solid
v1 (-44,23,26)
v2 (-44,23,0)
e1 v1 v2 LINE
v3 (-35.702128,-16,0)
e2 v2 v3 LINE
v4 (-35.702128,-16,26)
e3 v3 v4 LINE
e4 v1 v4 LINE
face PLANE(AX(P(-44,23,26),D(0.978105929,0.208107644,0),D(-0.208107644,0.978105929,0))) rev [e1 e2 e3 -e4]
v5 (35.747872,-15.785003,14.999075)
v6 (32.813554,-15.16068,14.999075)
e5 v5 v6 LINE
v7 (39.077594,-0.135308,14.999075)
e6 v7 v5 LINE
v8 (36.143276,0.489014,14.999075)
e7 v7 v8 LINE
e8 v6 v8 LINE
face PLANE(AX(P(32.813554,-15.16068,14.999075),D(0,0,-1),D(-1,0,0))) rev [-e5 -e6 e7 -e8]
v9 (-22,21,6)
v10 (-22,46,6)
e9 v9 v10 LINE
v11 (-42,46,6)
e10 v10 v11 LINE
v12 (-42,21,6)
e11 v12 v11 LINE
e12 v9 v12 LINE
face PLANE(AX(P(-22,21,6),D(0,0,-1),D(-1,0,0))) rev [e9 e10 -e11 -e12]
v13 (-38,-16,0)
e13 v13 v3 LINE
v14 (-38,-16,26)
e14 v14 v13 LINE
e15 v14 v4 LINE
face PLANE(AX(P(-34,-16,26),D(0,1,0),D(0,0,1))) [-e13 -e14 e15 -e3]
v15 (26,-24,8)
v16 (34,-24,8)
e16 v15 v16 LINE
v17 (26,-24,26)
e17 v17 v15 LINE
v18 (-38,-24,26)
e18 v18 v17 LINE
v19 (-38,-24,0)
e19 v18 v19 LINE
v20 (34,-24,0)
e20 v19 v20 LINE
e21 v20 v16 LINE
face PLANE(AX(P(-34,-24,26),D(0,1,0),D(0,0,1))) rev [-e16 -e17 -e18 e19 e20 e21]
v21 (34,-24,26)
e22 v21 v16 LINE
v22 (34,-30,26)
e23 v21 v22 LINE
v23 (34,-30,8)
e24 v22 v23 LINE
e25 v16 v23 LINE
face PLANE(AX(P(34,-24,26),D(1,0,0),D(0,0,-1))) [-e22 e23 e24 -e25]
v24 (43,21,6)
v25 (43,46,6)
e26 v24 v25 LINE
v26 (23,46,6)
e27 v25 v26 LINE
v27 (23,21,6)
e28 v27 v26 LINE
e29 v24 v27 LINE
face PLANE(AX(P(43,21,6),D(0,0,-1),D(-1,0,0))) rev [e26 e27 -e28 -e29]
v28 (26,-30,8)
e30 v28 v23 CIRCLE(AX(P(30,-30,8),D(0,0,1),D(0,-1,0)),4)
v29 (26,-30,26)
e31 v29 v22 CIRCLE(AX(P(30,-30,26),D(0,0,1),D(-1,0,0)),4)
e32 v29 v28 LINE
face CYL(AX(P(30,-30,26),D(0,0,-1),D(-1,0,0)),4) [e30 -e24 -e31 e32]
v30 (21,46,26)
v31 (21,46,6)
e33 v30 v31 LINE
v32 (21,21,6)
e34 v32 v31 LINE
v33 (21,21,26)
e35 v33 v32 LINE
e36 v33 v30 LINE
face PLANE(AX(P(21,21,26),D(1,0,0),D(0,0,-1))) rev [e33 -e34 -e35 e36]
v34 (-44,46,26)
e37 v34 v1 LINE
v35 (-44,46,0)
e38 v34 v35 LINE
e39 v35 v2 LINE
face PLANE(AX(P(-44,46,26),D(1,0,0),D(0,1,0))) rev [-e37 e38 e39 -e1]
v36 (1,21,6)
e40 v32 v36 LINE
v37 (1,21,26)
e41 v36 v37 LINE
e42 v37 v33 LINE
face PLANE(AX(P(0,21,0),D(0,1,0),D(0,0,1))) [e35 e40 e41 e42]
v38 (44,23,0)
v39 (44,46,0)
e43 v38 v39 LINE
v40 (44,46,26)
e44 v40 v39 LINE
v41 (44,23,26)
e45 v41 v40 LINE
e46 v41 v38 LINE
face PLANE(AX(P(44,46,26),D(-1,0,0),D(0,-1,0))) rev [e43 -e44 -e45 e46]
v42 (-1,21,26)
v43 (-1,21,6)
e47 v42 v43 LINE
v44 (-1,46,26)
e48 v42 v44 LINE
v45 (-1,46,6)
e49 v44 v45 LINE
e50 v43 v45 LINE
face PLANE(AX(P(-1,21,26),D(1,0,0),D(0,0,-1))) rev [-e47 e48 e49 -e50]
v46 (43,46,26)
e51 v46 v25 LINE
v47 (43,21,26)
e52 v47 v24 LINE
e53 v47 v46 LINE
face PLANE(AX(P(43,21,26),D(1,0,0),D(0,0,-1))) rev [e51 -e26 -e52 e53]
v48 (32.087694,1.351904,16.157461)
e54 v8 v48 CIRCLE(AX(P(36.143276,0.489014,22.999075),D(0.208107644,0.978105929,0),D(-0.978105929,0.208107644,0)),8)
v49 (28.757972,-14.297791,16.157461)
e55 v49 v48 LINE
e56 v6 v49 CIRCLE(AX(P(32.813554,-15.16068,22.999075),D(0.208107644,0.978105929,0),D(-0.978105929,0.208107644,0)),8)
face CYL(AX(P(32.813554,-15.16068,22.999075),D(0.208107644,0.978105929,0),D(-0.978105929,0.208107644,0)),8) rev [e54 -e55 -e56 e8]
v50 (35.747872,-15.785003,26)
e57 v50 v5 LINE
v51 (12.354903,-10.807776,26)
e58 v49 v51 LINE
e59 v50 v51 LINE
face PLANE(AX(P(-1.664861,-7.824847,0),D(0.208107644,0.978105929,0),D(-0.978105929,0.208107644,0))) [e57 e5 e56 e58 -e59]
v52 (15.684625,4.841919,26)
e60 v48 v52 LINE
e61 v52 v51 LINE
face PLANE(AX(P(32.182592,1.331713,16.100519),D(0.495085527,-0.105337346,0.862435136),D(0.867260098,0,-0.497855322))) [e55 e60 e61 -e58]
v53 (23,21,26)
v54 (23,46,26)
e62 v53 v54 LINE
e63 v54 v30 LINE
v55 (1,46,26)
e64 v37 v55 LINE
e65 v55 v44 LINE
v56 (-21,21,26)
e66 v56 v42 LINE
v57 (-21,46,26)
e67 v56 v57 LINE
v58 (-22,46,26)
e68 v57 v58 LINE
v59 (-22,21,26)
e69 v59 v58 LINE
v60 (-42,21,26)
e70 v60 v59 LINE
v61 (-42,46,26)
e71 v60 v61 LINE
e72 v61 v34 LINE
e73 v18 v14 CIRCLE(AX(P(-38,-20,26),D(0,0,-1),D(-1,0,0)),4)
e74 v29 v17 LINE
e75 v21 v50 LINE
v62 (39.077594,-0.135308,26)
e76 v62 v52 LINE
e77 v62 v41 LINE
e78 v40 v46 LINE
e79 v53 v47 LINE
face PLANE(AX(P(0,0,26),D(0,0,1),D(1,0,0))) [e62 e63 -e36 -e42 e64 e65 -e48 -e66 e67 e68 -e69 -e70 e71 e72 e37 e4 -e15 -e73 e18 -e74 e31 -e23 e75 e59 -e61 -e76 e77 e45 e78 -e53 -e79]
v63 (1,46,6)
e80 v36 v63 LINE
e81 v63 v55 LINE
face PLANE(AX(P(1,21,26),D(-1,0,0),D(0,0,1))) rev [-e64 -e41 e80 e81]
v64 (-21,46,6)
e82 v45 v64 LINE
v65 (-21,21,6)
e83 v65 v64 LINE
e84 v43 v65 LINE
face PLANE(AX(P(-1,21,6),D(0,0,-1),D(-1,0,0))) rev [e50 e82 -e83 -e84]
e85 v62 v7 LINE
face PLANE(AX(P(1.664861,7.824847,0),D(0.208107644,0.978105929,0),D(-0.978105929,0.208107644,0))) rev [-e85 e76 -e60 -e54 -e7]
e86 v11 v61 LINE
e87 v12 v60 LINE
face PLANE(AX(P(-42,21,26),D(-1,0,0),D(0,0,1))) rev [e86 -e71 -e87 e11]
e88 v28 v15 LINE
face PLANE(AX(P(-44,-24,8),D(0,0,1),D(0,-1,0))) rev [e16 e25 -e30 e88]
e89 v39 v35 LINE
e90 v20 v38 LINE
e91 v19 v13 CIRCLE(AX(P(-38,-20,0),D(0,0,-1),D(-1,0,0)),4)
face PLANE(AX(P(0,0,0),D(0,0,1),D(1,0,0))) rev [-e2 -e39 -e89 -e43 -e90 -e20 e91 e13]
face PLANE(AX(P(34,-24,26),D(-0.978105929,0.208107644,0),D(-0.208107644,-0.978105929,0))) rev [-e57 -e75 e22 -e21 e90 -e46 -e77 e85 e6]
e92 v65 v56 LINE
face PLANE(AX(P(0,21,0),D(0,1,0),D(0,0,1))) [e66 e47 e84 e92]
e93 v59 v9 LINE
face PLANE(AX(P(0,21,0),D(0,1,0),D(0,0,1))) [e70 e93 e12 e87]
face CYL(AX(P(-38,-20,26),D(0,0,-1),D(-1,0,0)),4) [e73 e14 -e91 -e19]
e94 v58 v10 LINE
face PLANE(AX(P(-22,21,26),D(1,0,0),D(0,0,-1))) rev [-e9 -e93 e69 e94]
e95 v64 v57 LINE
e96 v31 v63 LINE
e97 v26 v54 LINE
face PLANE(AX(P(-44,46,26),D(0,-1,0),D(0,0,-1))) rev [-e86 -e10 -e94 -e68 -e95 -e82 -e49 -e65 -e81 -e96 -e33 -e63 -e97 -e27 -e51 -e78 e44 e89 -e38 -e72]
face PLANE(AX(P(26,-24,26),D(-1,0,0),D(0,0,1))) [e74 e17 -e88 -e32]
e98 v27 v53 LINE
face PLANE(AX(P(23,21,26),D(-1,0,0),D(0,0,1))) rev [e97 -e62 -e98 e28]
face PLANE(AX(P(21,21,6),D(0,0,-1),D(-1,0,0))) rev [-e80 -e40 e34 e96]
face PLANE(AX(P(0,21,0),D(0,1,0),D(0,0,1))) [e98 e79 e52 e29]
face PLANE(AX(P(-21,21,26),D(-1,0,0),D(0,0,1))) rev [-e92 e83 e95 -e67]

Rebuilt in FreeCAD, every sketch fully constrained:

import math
import FreeCAD as App
import Part
import Sketcher
Q = App.Units.Quantity

doc = App.newDocument("Part")
body = doc.addObject("PartDesign::Body", "Body")

# Sketch on XY plane
sketch1 = body.newObject("Sketcher::SketchObject", "Sketch")
sketch1.AttachmentSupport = (doc.getObject("XY_Plane"), [""])
sketch1.MapMode = "FlatFace"
sketch1.addGeometry(Part.LineSegment(App.Vector(-34, -24, 0), App.Vector(34, -24, 0)), False)
sketch1.addGeometry(Part.LineSegment(App.Vector(34, -24, 0), App.Vector(44, 23, 0)), False)
sketch1.addGeometry(Part.LineSegment(App.Vector(44, 23, 0), App.Vector(44, 46, 0)), False)
sketch1.addGeometry(Part.LineSegment(App.Vector(44, 46, 0), App.Vector(-44, 46, 0)), False)
sketch1.addGeometry(Part.LineSegment(App.Vector(-44, 46, 0), App.Vector(-44, 23, 0)), False)
sketch1.addGeometry(Part.LineSegment(App.Vector(-44, 23, 0), App.Vector(-34, -24, 0)), False)
sketch1.addConstraint(Sketcher.Constraint("Coincident", 0, 2, 1, 1))
sketch1.addConstraint(Sketcher.Constraint("Coincident", 1, 2, 2, 1))
sketch1.addConstraint(Sketcher.Constraint("Coincident", 2, 2, 3, 1))
sketch1.addConstraint(Sketcher.Constraint("Coincident", 3, 2, 4, 1))
sketch1.addConstraint(Sketcher.Constraint("Coincident", 4, 2, 5, 1))
sketch1.addConstraint(Sketcher.Constraint("Coincident", 5, 2, 0, 1))
sketch1.addConstraint(Sketcher.Constraint("Horizontal", 0))
sketch1.addConstraint(Sketcher.Constraint("Vertical", 2))
sketch1.addConstraint(Sketcher.Constraint("Horizontal", 3))
sketch1.addConstraint(Sketcher.Constraint("Vertical", 4))
sketch1.addConstraint(Sketcher.Constraint("Symmetric", 1, 2, 4, 2, -2))
sketch1.addConstraint(Sketcher.Constraint("Equal", 1, 5))
sketch1.addConstraint(Sketcher.Constraint("DistanceX", 0, 1, 0, 2, Q("68 mm")))
sketch1.addConstraint(Sketcher.Constraint("DistanceX", 3, 2, 3, 1, Q("88 mm")))
sketch1.addConstraint(Sketcher.Constraint("DistanceY", 2, 1, 2, 2, Q("23 mm")))
sketch1.addConstraint(Sketcher.Constraint("DistanceY", 0, 2, -1, 1, Q("24 mm")))
sketch1.addConstraint(Sketcher.Constraint("DistanceY", -1, 1, 1, 2, Q("23 mm")))
pad1 = body.newObject("PartDesign::Pad", "Pad")
pad1.Profile = sketch1
pad1.Length = 26

# Sketch on XZ plane
sketch2 = body.newObject("Sketcher::SketchObject", "Sketch001")
sketch2.AttachmentSupport = (doc.getObject("XZ_Plane"), [""])
sketch2.MapMode = "FlatFace"
sketch2.AttachmentOffset = App.Placement(App.Vector(0, 0, -46), App.Rotation())
sketch2.addGeometry(Part.LineSegment(App.Vector(23, 6, 0), App.Vector(23, 26, 0)), False)
sketch2.addGeometry(Part.LineSegment(App.Vector(23, 26, 0), App.Vector(43, 26, 0)), False)
sketch2.addGeometry(Part.LineSegment(App.Vector(43, 26, 0), App.Vector(43, 6, 0)), False)
sketch2.addGeometry(Part.LineSegment(App.Vector(43, 6, 0), App.Vector(23, 6, 0)), False)
sketch2.addGeometry(Part.LineSegment(App.Vector(1, 6, 0), App.Vector(1, 26, 0)), False)
sketch2.addGeometry(Part.LineSegment(App.Vector(1, 26, 0), App.Vector(21, 26, 0)), False)
sketch2.addGeometry(Part.LineSegment(App.Vector(21, 26, 0), App.Vector(21, 6, 0)), False)
sketch2.addGeometry(Part.LineSegment(App.Vector(21, 6, 0), App.Vector(1, 6, 0)), False)
sketch2.addGeometry(Part.LineSegment(App.Vector(-21, 6, 0), App.Vector(-21, 26, 0)), False)
sketch2.addGeometry(Part.LineSegment(App.Vector(-21, 26, 0), App.Vector(-1, 26, 0)), False)
sketch2.addGeometry(Part.LineSegment(App.Vector(-1, 26, 0), App.Vector(-1, 6, 0)), False)
sketch2.addGeometry(Part.LineSegment(App.Vector(-1, 6, 0), App.Vector(-21, 6, 0)), False)
sketch2.addGeometry(Part.LineSegment(App.Vector(-42, 6, 0), App.Vector(-42, 26, 0)), False)
sketch2.addGeometry(Part.LineSegment(App.Vector(-42, 26, 0), App.Vector(-22, 26, 0)), False)
sketch2.addGeometry(Part.LineSegment(App.Vector(-22, 26, 0), App.Vector(-22, 6, 0)), False)
sketch2.addGeometry(Part.LineSegment(App.Vector(-22, 6, 0), App.Vector(-42, 6, 0)), False)
sketch2.addConstraint(Sketcher.Constraint("Coincident", 0, 2, 1, 1))
sketch2.addConstraint(Sketcher.Constraint("Coincident", 1, 2, 2, 1))
sketch2.addConstraint(Sketcher.Constraint("Coincident", 2, 2, 3, 1))
sketch2.addConstraint(Sketcher.Constraint("Coincident", 3, 2, 0, 1))
sketch2.addConstraint(Sketcher.Constraint("Coincident", 4, 2, 5, 1))
sketch2.addConstraint(Sketcher.Constraint("Coincident", 5, 2, 6, 1))
sketch2.addConstraint(Sketcher.Constraint("Coincident", 6, 2, 7, 1))
sketch2.addConstraint(Sketcher.Constraint("Coincident", 7, 2, 4, 1))
sketch2.addConstraint(Sketcher.Constraint("Coincident", 8, 2, 9, 1))
sketch2.addConstraint(Sketcher.Constraint("Coincident", 9, 2, 10, 1))
sketch2.addConstraint(Sketcher.Constraint("Coincident", 10, 2, 11, 1))
sketch2.addConstraint(Sketcher.Constraint("Coincident", 11, 2, 8, 1))
sketch2.addConstraint(Sketcher.Constraint("Coincident", 12, 2, 13, 1))
sketch2.addConstraint(Sketcher.Constraint("Coincident", 13, 2, 14, 1))
sketch2.addConstraint(Sketcher.Constraint("Coincident", 14, 2, 15, 1))
sketch2.addConstraint(Sketcher.Constraint("Coincident", 15, 2, 12, 1))
sketch2.addConstraint(Sketcher.Constraint("Vertical", 0))
sketch2.addConstraint(Sketcher.Constraint("Horizontal", 1))
sketch2.addConstraint(Sketcher.Constraint("Vertical", 2))
sketch2.addConstraint(Sketcher.Constraint("Horizontal", 3))
sketch2.addConstraint(Sketcher.Constraint("Vertical", 4))
sketch2.addConstraint(Sketcher.Constraint("Horizontal", 5))
sketch2.addConstraint(Sketcher.Constraint("Vertical", 6))
sketch2.addConstraint(Sketcher.Constraint("Horizontal", 7))
sketch2.addConstraint(Sketcher.Constraint("Vertical", 8))
sketch2.addConstraint(Sketcher.Constraint("Horizontal", 9))
sketch2.addConstraint(Sketcher.Constraint("Vertical", 10))
sketch2.addConstraint(Sketcher.Constraint("Horizontal", 11))
sketch2.addConstraint(Sketcher.Constraint("Vertical", 12))
sketch2.addConstraint(Sketcher.Constraint("Horizontal", 13))
sketch2.addConstraint(Sketcher.Constraint("Vertical", 14))
sketch2.addConstraint(Sketcher.Constraint("Horizontal", 15))
sketch2.addConstraint(Sketcher.Constraint("Symmetric", 5, 2, 8, 2, -2))
sketch2.addConstraint(Sketcher.Constraint("Symmetric", 7, 2, 10, 2, -2))
sketch2.addConstraint(Sketcher.Constraint("Horizontal", 1, 2, 4, 2))
sketch2.addConstraint(Sketcher.Constraint("Horizontal", 3, 2, 6, 2))
sketch2.addConstraint(Sketcher.Constraint("Horizontal", 9, 2, 12, 2))
sketch2.addConstraint(Sketcher.Constraint("Horizontal", 11, 2, 14, 2))
sketch2.addConstraint(Sketcher.Constraint("Equal", 3, 5))
sketch2.addConstraint(Sketcher.Constraint("Equal", 11, 13))
sketch2.addConstraint(Sketcher.Constraint("Equal", 15, 0))
sketch2.addConstraint(Sketcher.Constraint("DistanceX", 1, 1, 1, 2, Q("20 mm")))
sketch2.addConstraint(Sketcher.Constraint("DistanceX", -1, 1, 0, 2, Q("23 mm")))
sketch2.addConstraint(Sketcher.Constraint("DistanceY", -1, 1, 0, 2, Q("26 mm")))
sketch2.addConstraint(Sketcher.Constraint("DistanceX", -1, 1, 4, 2, Q("1 mm")))
sketch2.addConstraint(Sketcher.Constraint("DistanceX", 12, 2, -1, 1, Q("42 mm")))
pocket1 = body.newObject("PartDesign::Pocket", "Pocket")
pocket1.Profile = sketch2
pocket1.Length = 25
pocket1.Reversed = True

# Sketch on an angled plane
sketch3 = body.newObject("Sketcher::SketchObject", "Sketch002")
sketch3.Placement = App.Placement(App.Vector(34.478415, -7.335833, 14.999075), App.Rotation(App.Vector(0.589598269, -0.12544644, 0.797895402), App.Vector(-0.780426223, 0.166048132, 0.602795926), App.Vector(-0.208107644, -0.978105929, 0), "ZXY"))
sketch3.addGeometry(Part.LineSegment(App.Vector(0, 0, 0), App.Vector(6, -8, 0)), False)
sketch3.addGeometry(Part.LineSegment(App.Vector(6, -8, 0), App.Vector(18, 0, 0)), False)
sketch3.addGeometry(Part.LineSegment(App.Vector(18, 0, 0), App.Vector(11, 8, 0)), False)
sketch3.addGeometry(Part.LineSegment(App.Vector(11, 8, 0), App.Vector(6, 15, 0)), False)
sketch3.addGeometry(Part.LineSegment(App.Vector(6, 15, 0), App.Vector(2, 11, 0)), False)
sketch3.addGeometry(Part.ArcOfCircle(Part.Circle(App.Vector(6, 5, 0), App.Vector(0, 0, 1), 8), math.radians(127), math.radians(217)), False)
sketch3.addConstraint(Sketcher.Constraint("Coincident", 0, 2, 1, 1))
sketch3.addConstraint(Sketcher.Constraint("Coincident", 1, 2, 2, 1))
sketch3.addConstraint(Sketcher.Constraint("Coincident", 2, 2, 3, 1))
sketch3.addConstraint(Sketcher.Constraint("Coincident", 3, 2, 4, 1))
sketch3.addConstraint(Sketcher.Constraint("Tangent", 4, 2, 5, 1))
sketch3.addConstraint(Sketcher.Constraint("Tangent", 5, 2, 0, 1))
sketch3.addConstraint(Sketcher.Constraint("Coincident", 5, 2, -1, 1))
sketch3.addConstraint(Sketcher.Constraint("PointOnObject", 1, 2, -1))
sketch3.addConstraint(Sketcher.Constraint("Perpendicular", 0, 1))
sketch3.addConstraint(Sketcher.Constraint("Perpendicular", 1, 2))
sketch3.addConstraint(Sketcher.Constraint("Parallel", 2, 3))
sketch3.addConstraint(Sketcher.Constraint("Perpendicular", 3, 4))
sketch3.addConstraint(Sketcher.Constraint("Equal", 0, 2))
sketch3.addConstraint(Sketcher.Constraint("Radius", 5, Q("8 mm")))
sketch3.addConstraint(Sketcher.Constraint("DistanceY", 0, 2, -1, 1, Q("8.4397 mm")))
sketch3.addConstraint(Sketcher.Constraint("DistanceX", -1, 1, 1, 2, Q("17.547319 mm")))
pocket2 = body.newObject("PartDesign::Pocket", "Pocket001")
pocket2.Profile = sketch3
pocket2.Length = 16
pocket2.Midplane = True

# Sketch on an angled plane
sketch4 = body.newObject("Sketcher::SketchObject", "Sketch003")
sketch4.Placement = App.Placement(App.Vector(-1.664861, -7.824847, 0), App.Rotation(App.Vector(0.978105929, -0.208107644, 0), App.Vector(0, 0, -1), App.Vector(0.208107644, 0.978105929, 0), "ZXY"))
sketch4.addGeometry(Part.LineSegment(App.Vector(31.2, -16.1, 0), App.Vector(14.3, -26, 0)), False)
sketch4.addGeometry(Part.LineSegment(App.Vector(14.3, -26, 0), App.Vector(32.7, -30.6, 0)), False)
sketch4.addGeometry(Part.ArcOfCircle(Part.Circle(App.Vector(35.3, -23, 0), App.Vector(0, 0, 1), 8), math.radians(-109), math.radians(49)), False)
sketch4.addGeometry(Part.LineSegment(App.Vector(40.5, -16.9, 0), App.Vector(38.3, -15, 0)), False)
sketch4.addGeometry(Part.LineSegment(App.Vector(38.3, -15, 0), App.Vector(35.3, -15, 0)), False)
sketch4.addGeometry(Part.ArcOfCircle(Part.Circle(App.Vector(35.3, -23, 0), App.Vector(0, 0, 1), 8), math.radians(90), math.radians(120)), False)
sketch4.addConstraint(Sketcher.Constraint("Coincident", 0, 2, 1, 1))
sketch4.addConstraint(Sketcher.Constraint("Coincident", 1, 2, 2, 1))
sketch4.addConstraint(Sketcher.Constraint("Coincident", 2, 2, 3, 1))
sketch4.addConstraint(Sketcher.Constraint("Coincident", 3, 2, 4, 1))
sketch4.addConstraint(Sketcher.Constraint("Coincident", 4, 2, 5, 1))
sketch4.addConstraint(Sketcher.Constraint("Tangent", 5, 2, 0, 1))
sketch4.addConstraint(Sketcher.Constraint("Coincident", 5, 3, 2, 3))
sketch4.addConstraint(Sketcher.Constraint("Equal", 2, 5))
sketch4.addConstraint(Sketcher.Constraint("Vertical", 5, 3, 4, 2))
sketch4.addConstraint(Sketcher.Constraint("Radius", 2, Q("8 mm")))
sketch4.addConstraint(Sketcher.Constraint("Distance", 4, Q("3 mm")))
sketch4.addConstraint(Sketcher.Constraint("DistanceY", 2, 3, -1, 1, Q("23 mm")))
sketch4.addConstraint(Sketcher.Constraint("DistanceY", 0, 2, -1, 1, Q("26 mm")))
sketch4.addConstraint(Sketcher.Constraint("DistanceX", 0, 2, 2, 3, Q("20.916601 mm")))
sketch4.addConstraint(Sketcher.Constraint("DistanceY", 1, 2, -1, 1, Q("30.571319 mm")))
sketch4.addConstraint(Sketcher.Constraint("DistanceX", -1, 1, 2, 2, Q("40.460809 mm")))
sketch4.addConstraint(Sketcher.Constraint("DistanceY", 2, 2, -1, 1, Q("16.92963 mm")))
sketch4.addConstraint(Sketcher.Constraint("Distance", 3, Q("2.934944 mm")))
pocket3 = body.newObject("PartDesign::Pocket", "Pocket002")
pocket3.Profile = sketch4
pocket3.Length = 16
pocket3.Reversed = True

# Sketch on XY plane
sketch5 = body.newObject("Sketcher::SketchObject", "Sketch004")
sketch5.AttachmentSupport = (doc.getObject("XY_Plane"), [""])
sketch5.MapMode = "FlatFace"
sketch5.addGeometry(Part.LineSegment(App.Vector(34, -24, 0), App.Vector(34, -34, 0)), False)
sketch5.addGeometry(Part.LineSegment(App.Vector(34, -34, 0), App.Vector(26, -34, 0)), False)
sketch5.addGeometry(Part.LineSegment(App.Vector(26, -34, 0), App.Vector(26, -24, 0)), False)
sketch5.addGeometry(Part.LineSegment(App.Vector(26, -24, 0), App.Vector(34, -24, 0)), False)
sketch5.addGeometry(Part.LineSegment(App.Vector(-34, -24, 0), App.Vector(-38, -24, 0)), False)
sketch5.addGeometry(Part.ArcOfCircle(Part.Circle(App.Vector(-38, -20, 0), App.Vector(0, 0, 1), 4), math.radians(90), math.radians(270)), False)
sketch5.addGeometry(Part.LineSegment(App.Vector(-38, -16, 0), App.Vector(-34, -16, 0)), False)
sketch5.addGeometry(Part.LineSegment(App.Vector(-34, -16, 0), App.Vector(-34, -24, 0)), False)
sketch5.addConstraint(Sketcher.Constraint("Coincident", 0, 2, 1, 1))
sketch5.addConstraint(Sketcher.Constraint("Coincident", 1, 2, 2, 1))
sketch5.addConstraint(Sketcher.Constraint("Coincident", 2, 2, 3, 1))
sketch5.addConstraint(Sketcher.Constraint("Coincident", 3, 2, 0, 1))
sketch5.addConstraint(Sketcher.Constraint("Tangent", 4, 2, 5, 2))
sketch5.addConstraint(Sketcher.Constraint("Tangent", 5, 1, 6, 1))
sketch5.addConstraint(Sketcher.Constraint("Coincident", 6, 2, 7, 1))
sketch5.addConstraint(Sketcher.Constraint("Coincident", 7, 2, 4, 1))
sketch5.addConstraint(Sketcher.Constraint("Vertical", 0))
sketch5.addConstraint(Sketcher.Constraint("Horizontal", 1))
sketch5.addConstraint(Sketcher.Constraint("Vertical", 2))
sketch5.addConstraint(Sketcher.Constraint("Horizontal", 3))
sketch5.addConstraint(Sketcher.Constraint("Horizontal", 4))
sketch5.addConstraint(Sketcher.Constraint("Horizontal", 6))
sketch5.addConstraint(Sketcher.Constraint("Vertical", 7))
sketch5.addConstraint(Sketcher.Constraint("Symmetric", 3, 2, 7, 2, -2))
sketch5.addConstraint(Sketcher.Constraint("Equal", 3, 7))
sketch5.addConstraint(Sketcher.Constraint("Radius", 5, Q("4 mm")))
sketch5.addConstraint(Sketcher.Constraint("DistanceX", 4, 2, 4, 1, Q("4 mm")))
sketch5.addConstraint(Sketcher.Constraint("DistanceY", 0, 2, 0, 1, Q("10 mm")))
sketch5.addConstraint(Sketcher.Constraint("DistanceX", 5, 3, -1, 1, Q("38 mm")))
sketch5.addConstraint(Sketcher.Constraint("DistanceY", 5, 3, -1, 1, Q("20 mm")))
pad2 = body.newObject("PartDesign::Pad", "Pad001")
pad2.Profile = sketch5
pad2.Length = 26

# Sketch on XY plane
sketch6 = body.newObject("Sketcher::SketchObject", "Sketch005")
sketch6.AttachmentSupport = (doc.getObject("XY_Plane"), [""])
sketch6.MapMode = "FlatFace"
sketch6.addGeometry(Part.LineSegment(App.Vector(34, -30, 0), App.Vector(34, -35.8, 0)), False)
sketch6.addGeometry(Part.LineSegment(App.Vector(34, -35.8, 0), App.Vector(26, -35.8, 0)), False)
sketch6.addGeometry(Part.LineSegment(App.Vector(26, -35.8, 0), App.Vector(26, -30, 0)), False)
sketch6.addGeometry(Part.ArcOfCircle(Part.Circle(App.Vector(30, -30, 0), App.Vector(0, 0, 1), 4), math.radians(180), math.radians(360)), False)
sketch6.addGeometry(Part.LineSegment(App.Vector(-26, -30, 0), App.Vector(-26, -35.8, 0)), False)
sketch6.addGeometry(Part.LineSegment(App.Vector(-26, -35.8, 0), App.Vector(-34, -35.8, 0)), False)
sketch6.addGeometry(Part.LineSegment(App.Vector(-34, -35.8, 0), App.Vector(-34, -30, 0)), False)
sketch6.addGeometry(Part.ArcOfCircle(Part.Circle(App.Vector(-30, -30, 0), App.Vector(0, 0, 1), 4), math.radians(180), math.radians(360)), False)
sketch6.addConstraint(Sketcher.Constraint("Coincident", 0, 2, 1, 1))
sketch6.addConstraint(Sketcher.Constraint("Coincident", 1, 2, 2, 1))
sketch6.addConstraint(Sketcher.Constraint("Tangent", 2, 2, 3, 1))
sketch6.addConstraint(Sketcher.Constraint("Tangent", 3, 2, 0, 1))
sketch6.addConstraint(Sketcher.Constraint("Coincident", 4, 2, 5, 1))
sketch6.addConstraint(Sketcher.Constraint("Coincident", 5, 2, 6, 1))
sketch6.addConstraint(Sketcher.Constraint("Tangent", 6, 2, 7, 1))
sketch6.addConstraint(Sketcher.Constraint("Tangent", 7, 2, 4, 1))
sketch6.addConstraint(Sketcher.Constraint("Vertical", 0))
sketch6.addConstraint(Sketcher.Constraint("Horizontal", 1))
sketch6.addConstraint(Sketcher.Constraint("Vertical", 2))
sketch6.addConstraint(Sketcher.Constraint("Vertical", 4))
sketch6.addConstraint(Sketcher.Constraint("Horizontal", 5))
sketch6.addConstraint(Sketcher.Constraint("Vertical", 6))
sketch6.addConstraint(Sketcher.Constraint("Equal", 3, 7))
sketch6.addConstraint(Sketcher.Constraint("Symmetric", 3, 3, 7, 3, -2))
sketch6.addConstraint(Sketcher.Constraint("Horizontal", 1, 2, 4, 2))
sketch6.addConstraint(Sketcher.Constraint("Radius", 3, Q("4 mm")))
sketch6.addConstraint(Sketcher.Constraint("DistanceX", -1, 1, 3, 3, Q("30 mm")))
sketch6.addConstraint(Sketcher.Constraint("DistanceY", 3, 3, -1, 1, Q("30 mm")))
sketch6.addConstraint(Sketcher.Constraint("DistanceY", 0, 2, 0, 1, Q("5.772177 mm")))
pocket4 = body.newObject("PartDesign::Pocket", "Pocket003")
pocket4.Profile = sketch6
pocket4.Length = 26
pocket4.Reversed = True

# Sketch on YZ plane
sketch7 = body.newObject("Sketcher::SketchObject", "Sketch006")
sketch7.AttachmentSupport = (doc.getObject("YZ_Plane"), [""])
sketch7.MapMode = "FlatFace"
sketch7.AttachmentOffset = App.Placement(App.Vector(0, 0, 34), App.Rotation())
sketch7.addGeometry(Part.LineSegment(App.Vector(-24, 8, 0), App.Vector(-37, 8, 0)), False)
sketch7.addGeometry(Part.LineSegment(App.Vector(-37, 8, 0), App.Vector(-37, 0, 0)), False)
sketch7.addGeometry(Part.LineSegment(App.Vector(-37, 0, 0), App.Vector(-24, 0, 0)), False)
sketch7.addGeometry(Part.LineSegment(App.Vector(-24, 0, 0), App.Vector(-24, 8, 0)), False)
sketch7.addConstraint(Sketcher.Constraint("Coincident", 0, 2, 1, 1))
sketch7.addConstraint(Sketcher.Constraint("Coincident", 1, 2, 2, 1))
sketch7.addConstraint(Sketcher.Constraint("Coincident", 2, 2, 3, 1))
sketch7.addConstraint(Sketcher.Constraint("Coincident", 3, 2, 0, 1))
sketch7.addConstraint(Sketcher.Constraint("Horizontal", 0))
sketch7.addConstraint(Sketcher.Constraint("Vertical", 1))
sketch7.addConstraint(Sketcher.Constraint("Horizontal", 2))
sketch7.addConstraint(Sketcher.Constraint("Vertical", 3))
sketch7.addConstraint(Sketcher.Constraint("PointOnObject", 1, 2, -1))
sketch7.addConstraint(Sketcher.Constraint("DistanceY", 1, 2, 1, 1, Q("8 mm")))
sketch7.addConstraint(Sketcher.Constraint("DistanceX", 2, 2, -1, 1, Q("24 mm")))
sketch7.addConstraint(Sketcher.Constraint("DistanceX", 0, 2, 0, 1, Q("12.863126 mm")))
pocket5 = body.newObject("PartDesign::Pocket", "Pocket004")
pocket5.Profile = sketch7
pocket5.Type = "ThroughAll"

doc.recompute()
